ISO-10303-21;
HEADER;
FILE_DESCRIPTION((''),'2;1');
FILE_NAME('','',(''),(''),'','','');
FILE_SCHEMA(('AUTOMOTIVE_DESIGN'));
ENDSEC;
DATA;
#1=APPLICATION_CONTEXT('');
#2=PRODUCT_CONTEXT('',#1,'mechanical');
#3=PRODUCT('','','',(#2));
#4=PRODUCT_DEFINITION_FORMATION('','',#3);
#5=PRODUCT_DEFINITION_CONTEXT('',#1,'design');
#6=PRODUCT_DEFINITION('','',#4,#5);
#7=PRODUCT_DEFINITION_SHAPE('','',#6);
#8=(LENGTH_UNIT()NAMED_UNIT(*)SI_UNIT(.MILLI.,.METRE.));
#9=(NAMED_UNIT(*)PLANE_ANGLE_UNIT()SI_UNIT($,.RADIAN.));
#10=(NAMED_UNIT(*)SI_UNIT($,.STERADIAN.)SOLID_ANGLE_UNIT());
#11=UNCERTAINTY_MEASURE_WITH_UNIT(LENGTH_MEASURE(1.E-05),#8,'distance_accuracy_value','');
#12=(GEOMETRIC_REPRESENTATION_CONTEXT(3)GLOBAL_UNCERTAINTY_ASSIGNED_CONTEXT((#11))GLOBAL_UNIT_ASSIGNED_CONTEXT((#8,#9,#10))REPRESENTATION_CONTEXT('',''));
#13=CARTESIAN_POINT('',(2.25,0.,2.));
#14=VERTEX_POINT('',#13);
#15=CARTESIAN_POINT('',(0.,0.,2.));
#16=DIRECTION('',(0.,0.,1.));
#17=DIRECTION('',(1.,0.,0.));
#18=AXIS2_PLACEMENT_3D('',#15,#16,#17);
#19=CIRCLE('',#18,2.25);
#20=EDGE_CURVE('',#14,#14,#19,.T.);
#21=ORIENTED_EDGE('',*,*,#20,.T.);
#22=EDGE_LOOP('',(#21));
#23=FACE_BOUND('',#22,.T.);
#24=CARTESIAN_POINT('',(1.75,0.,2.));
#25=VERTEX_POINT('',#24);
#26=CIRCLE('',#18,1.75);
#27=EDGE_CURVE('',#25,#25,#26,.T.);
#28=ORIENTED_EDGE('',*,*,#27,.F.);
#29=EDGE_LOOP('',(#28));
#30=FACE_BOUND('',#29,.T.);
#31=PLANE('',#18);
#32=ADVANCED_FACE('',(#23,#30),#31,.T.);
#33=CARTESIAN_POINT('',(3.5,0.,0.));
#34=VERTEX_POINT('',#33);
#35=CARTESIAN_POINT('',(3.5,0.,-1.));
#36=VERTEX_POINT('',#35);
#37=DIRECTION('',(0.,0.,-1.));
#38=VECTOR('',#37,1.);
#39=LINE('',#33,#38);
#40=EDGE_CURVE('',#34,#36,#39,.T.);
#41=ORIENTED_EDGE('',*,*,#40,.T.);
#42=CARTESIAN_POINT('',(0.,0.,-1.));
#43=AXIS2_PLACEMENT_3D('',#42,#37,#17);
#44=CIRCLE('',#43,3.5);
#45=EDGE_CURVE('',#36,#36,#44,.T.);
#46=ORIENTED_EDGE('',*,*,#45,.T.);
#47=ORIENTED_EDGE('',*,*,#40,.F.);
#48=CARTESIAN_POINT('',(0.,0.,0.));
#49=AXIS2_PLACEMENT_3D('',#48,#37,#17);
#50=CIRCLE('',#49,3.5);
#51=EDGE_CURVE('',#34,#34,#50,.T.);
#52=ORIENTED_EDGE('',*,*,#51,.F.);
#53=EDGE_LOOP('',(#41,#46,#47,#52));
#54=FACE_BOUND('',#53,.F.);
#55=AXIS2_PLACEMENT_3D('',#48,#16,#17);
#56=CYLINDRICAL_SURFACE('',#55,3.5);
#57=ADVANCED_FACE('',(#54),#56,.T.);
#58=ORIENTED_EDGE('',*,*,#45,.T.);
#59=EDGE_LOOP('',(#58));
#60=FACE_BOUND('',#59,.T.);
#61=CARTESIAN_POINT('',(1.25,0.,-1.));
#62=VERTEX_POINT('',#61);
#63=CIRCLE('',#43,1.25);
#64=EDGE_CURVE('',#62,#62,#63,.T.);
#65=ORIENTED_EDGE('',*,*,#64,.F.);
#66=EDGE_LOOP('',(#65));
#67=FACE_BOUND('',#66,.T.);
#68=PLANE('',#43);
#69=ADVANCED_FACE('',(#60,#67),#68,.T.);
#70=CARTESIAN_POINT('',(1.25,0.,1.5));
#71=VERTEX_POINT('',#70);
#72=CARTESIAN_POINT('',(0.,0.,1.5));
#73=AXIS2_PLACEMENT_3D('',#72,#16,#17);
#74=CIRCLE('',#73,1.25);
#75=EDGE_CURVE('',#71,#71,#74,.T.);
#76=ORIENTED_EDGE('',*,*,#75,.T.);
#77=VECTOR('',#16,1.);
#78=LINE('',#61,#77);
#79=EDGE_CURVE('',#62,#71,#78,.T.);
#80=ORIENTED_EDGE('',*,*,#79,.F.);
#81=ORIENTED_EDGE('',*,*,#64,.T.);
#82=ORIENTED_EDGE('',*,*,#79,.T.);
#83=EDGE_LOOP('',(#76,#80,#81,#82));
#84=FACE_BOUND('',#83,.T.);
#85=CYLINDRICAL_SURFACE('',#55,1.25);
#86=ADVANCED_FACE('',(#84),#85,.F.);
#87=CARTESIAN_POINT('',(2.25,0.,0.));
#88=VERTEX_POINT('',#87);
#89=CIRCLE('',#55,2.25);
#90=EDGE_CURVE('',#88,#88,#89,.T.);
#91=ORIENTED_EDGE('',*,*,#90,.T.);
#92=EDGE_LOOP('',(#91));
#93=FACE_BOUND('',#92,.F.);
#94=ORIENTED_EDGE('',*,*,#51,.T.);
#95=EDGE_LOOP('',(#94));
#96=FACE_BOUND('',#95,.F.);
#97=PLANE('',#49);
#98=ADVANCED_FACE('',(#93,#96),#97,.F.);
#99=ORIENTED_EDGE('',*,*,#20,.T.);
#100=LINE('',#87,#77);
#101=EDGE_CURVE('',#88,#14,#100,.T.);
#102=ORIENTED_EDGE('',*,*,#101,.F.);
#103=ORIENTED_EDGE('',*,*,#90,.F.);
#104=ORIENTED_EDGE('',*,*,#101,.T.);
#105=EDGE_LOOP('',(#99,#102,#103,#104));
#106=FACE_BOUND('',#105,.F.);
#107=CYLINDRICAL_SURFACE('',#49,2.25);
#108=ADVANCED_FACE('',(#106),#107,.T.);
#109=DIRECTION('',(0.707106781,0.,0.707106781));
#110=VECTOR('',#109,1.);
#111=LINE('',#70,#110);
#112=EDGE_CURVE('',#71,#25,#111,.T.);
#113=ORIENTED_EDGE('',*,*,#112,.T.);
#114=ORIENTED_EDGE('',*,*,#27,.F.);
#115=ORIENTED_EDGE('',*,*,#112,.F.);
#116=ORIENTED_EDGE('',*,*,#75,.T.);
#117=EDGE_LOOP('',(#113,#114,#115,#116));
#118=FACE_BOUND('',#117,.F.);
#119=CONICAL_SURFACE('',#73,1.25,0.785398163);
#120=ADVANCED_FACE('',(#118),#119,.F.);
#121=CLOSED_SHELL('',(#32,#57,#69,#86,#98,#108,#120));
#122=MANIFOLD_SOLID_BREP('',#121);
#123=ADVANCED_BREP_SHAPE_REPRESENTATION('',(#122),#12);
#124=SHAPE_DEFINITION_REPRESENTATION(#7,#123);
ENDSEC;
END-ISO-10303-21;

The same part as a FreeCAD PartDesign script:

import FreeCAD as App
import Part
import Sketcher


def edges_at(feature, points):
    """Names of the edges that pass closest to the given points."""
    edges = feature.Shape.Edges
    near = lambda p: min(range(len(edges)), key=lambda i: edges[i].distToShape(Part.Vertex(*p))[0])
    return sorted({f"Edge{near(p) + 1}" for p in points})

doc = App.newDocument("Part")
body = doc.addObject("PartDesign::Body", "Body")

sketch1 = body.newObject("Sketcher::SketchObject", "Sketch")
sketch1.AttachmentSupport = (doc.getObject("XY_Plane"), [""])
sketch1.MapMode = "FlatFace"
sketch1.addGeometry(Part.Circle(App.Vector(0, 0, 0), App.Vector(0, 0, 1), 2.2), False)
sketch1.addGeometry(Part.Circle(App.Vector(0, 0, 0), App.Vector(0, 0, 1), 1.2), False)
sketch1.addConstraint(Sketcher.Constraint("Coincident", 0, 3, -1, 1))
sketch1.addConstraint(Sketcher.Constraint("Coincident", 1, 3, -1, 1))
sketch1.addConstraint(Sketcher.Constraint("Diameter", 0, 4.5))
sketch1.addConstraint(Sketcher.Constraint("Diameter", 1, 2.5))
pad1 = body.newObject("PartDesign::Pad", "Pad")
pad1.Profile = sketch1
pad1.Length = 2
doc.recompute()

chamfer = body.newObject("PartDesign::Chamfer", "Chamfer")
chamfer.Base = (pad1, edges_at(pad1, [(-1.25, 0, 2)]))
chamfer.Size = 0.5

sketch2 = body.newObject("Sketcher::SketchObject", "Sketch001")
sketch2.AttachmentSupport = (doc.getObject("XY_Plane"), [""])
sketch2.MapMode = "FlatFace"
sketch2.addGeometry(Part.Circle(App.Vector(0, 0, 0), App.Vector(0, 0, 1), 3.5), False)
sketch2.addGeometry(Part.Circle(App.Vector(0, 0, 0), App.Vector(0, 0, 1), 1.2), False)
sketch2.addConstraint(Sketcher.Constraint("Coincident", 0, 3, -1, 1))
sketch2.addConstraint(Sketcher.Constraint("Coincident", 1, 3, -1, 1))
sketch2.addConstraint(Sketcher.Constraint("Diameter", 0, 7.0))
sketch2.addConstraint(Sketcher.Constraint("Diameter", 1, 2.5))
pad2 = body.newObject("PartDesign::Pad", "Pad001")
pad2.Profile = sketch2
pad2.Length = 1
pad2.Reversed = True

doc.recompute()
